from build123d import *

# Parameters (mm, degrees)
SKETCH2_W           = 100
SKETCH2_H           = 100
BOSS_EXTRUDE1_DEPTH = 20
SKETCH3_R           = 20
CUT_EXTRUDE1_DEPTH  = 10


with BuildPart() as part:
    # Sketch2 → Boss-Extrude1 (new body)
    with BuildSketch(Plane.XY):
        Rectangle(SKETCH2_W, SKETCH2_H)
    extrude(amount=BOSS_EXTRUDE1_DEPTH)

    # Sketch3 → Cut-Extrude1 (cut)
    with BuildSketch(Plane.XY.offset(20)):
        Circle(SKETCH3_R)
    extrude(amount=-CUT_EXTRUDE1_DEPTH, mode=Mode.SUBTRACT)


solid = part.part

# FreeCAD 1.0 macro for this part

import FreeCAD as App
import Part
import Sketcher

V = App.Vector
Q = App.Units.Quantity


def add_polygon(sketch, points):
    """Adds a closed chain of lines whose ends are joined by coincident constraints."""
    first, n = sketch.GeometryCount, len(points)
    for a, b in zip(points, points[1:] + points[:1]):
        sketch.addGeometry(Part.LineSegment(App.Vector(*a, 0), App.Vector(*b, 0)), False)
    for i in range(n):
        sketch.addConstraint(Sketcher.Constraint("Coincident", first + i, 2, first + (i + 1) % n, 1))

doc = App.newDocument("Part")
params = doc.addObject("Spreadsheet::Sheet", "Params")
for row, (alias, value) in enumerate([
    ("sketch1_width", "100 mm"),
    ("pad1_length", "20 mm"),
    ("sketch2_diameter", "40 mm"),
    ("pocket1_length", "10 mm"),
], start=1):
    params.set(f"A{row}", alias)
    params.set(f"B{row}", "=" + value)
    params.setAlias(f"B{row}", alias)

body = doc.addObject("PartDesign::Body", "Body")

sketch1 = body.newObject("Sketcher::SketchObject", "Sketch")
sketch1.AttachmentSupport = (doc.getObject("XY_Plane"), [""])
sketch1.MapMode = "FlatFace"
add_polygon(sketch1, [(-50, 50), (-50, -50), (50, -50), (50, 50)])
sketch1.addConstraint([
    Sketcher.Constraint("Vertical", 0),
    Sketcher.Constraint("Horizontal", 1),
    Sketcher.Constraint("Vertical", 2),
    Sketcher.Constraint("Horizontal", 3),
    Sketcher.Constraint("Symmetric", 0, 2, 2, 2, -1, 1),
    Sketcher.Constraint("Equal", 3, 0),
    Sketcher.Constraint("DistanceX", 1, 1, 1, 2, Q("100 mm")),
])
sketch1.setExpression("Constraints[10]", "Params.sketch1_width")
pad1 = body.newObject("PartDesign::Pad", "Pad")
pad1.Profile = sketch1
pad1.setExpression("Length", "Params.pad1_length")

sketch2 = body.newObject("Sketcher::SketchObject", "Sketch001")
sketch2.AttachmentSupport = (doc.getObject("XY_Plane"), [""])
sketch2.MapMode = "FlatFace"
sketch2.AttachmentOffset = App.Placement(V(0, 0, 20), App.Rotation())
sketch2.addGeometry(Part.Circle(V(0, 0, 0), V(0, 0, 1), 20), False)
sketch2.addConstraint([
    Sketcher.Constraint("Coincident", 0, 3, -1, 1),
    Sketcher.Constraint("Diameter", 0, Q("40 mm")),
])
sketch2.setExpression("Constraints[1]", "Params.sketch2_diameter")
pocket1 = body.newObject("PartDesign::Pocket", "Pocket")
pocket1.Profile = sketch2
pocket1.setExpression("Length", "Params.pocket1_length")

doc.recompute()
